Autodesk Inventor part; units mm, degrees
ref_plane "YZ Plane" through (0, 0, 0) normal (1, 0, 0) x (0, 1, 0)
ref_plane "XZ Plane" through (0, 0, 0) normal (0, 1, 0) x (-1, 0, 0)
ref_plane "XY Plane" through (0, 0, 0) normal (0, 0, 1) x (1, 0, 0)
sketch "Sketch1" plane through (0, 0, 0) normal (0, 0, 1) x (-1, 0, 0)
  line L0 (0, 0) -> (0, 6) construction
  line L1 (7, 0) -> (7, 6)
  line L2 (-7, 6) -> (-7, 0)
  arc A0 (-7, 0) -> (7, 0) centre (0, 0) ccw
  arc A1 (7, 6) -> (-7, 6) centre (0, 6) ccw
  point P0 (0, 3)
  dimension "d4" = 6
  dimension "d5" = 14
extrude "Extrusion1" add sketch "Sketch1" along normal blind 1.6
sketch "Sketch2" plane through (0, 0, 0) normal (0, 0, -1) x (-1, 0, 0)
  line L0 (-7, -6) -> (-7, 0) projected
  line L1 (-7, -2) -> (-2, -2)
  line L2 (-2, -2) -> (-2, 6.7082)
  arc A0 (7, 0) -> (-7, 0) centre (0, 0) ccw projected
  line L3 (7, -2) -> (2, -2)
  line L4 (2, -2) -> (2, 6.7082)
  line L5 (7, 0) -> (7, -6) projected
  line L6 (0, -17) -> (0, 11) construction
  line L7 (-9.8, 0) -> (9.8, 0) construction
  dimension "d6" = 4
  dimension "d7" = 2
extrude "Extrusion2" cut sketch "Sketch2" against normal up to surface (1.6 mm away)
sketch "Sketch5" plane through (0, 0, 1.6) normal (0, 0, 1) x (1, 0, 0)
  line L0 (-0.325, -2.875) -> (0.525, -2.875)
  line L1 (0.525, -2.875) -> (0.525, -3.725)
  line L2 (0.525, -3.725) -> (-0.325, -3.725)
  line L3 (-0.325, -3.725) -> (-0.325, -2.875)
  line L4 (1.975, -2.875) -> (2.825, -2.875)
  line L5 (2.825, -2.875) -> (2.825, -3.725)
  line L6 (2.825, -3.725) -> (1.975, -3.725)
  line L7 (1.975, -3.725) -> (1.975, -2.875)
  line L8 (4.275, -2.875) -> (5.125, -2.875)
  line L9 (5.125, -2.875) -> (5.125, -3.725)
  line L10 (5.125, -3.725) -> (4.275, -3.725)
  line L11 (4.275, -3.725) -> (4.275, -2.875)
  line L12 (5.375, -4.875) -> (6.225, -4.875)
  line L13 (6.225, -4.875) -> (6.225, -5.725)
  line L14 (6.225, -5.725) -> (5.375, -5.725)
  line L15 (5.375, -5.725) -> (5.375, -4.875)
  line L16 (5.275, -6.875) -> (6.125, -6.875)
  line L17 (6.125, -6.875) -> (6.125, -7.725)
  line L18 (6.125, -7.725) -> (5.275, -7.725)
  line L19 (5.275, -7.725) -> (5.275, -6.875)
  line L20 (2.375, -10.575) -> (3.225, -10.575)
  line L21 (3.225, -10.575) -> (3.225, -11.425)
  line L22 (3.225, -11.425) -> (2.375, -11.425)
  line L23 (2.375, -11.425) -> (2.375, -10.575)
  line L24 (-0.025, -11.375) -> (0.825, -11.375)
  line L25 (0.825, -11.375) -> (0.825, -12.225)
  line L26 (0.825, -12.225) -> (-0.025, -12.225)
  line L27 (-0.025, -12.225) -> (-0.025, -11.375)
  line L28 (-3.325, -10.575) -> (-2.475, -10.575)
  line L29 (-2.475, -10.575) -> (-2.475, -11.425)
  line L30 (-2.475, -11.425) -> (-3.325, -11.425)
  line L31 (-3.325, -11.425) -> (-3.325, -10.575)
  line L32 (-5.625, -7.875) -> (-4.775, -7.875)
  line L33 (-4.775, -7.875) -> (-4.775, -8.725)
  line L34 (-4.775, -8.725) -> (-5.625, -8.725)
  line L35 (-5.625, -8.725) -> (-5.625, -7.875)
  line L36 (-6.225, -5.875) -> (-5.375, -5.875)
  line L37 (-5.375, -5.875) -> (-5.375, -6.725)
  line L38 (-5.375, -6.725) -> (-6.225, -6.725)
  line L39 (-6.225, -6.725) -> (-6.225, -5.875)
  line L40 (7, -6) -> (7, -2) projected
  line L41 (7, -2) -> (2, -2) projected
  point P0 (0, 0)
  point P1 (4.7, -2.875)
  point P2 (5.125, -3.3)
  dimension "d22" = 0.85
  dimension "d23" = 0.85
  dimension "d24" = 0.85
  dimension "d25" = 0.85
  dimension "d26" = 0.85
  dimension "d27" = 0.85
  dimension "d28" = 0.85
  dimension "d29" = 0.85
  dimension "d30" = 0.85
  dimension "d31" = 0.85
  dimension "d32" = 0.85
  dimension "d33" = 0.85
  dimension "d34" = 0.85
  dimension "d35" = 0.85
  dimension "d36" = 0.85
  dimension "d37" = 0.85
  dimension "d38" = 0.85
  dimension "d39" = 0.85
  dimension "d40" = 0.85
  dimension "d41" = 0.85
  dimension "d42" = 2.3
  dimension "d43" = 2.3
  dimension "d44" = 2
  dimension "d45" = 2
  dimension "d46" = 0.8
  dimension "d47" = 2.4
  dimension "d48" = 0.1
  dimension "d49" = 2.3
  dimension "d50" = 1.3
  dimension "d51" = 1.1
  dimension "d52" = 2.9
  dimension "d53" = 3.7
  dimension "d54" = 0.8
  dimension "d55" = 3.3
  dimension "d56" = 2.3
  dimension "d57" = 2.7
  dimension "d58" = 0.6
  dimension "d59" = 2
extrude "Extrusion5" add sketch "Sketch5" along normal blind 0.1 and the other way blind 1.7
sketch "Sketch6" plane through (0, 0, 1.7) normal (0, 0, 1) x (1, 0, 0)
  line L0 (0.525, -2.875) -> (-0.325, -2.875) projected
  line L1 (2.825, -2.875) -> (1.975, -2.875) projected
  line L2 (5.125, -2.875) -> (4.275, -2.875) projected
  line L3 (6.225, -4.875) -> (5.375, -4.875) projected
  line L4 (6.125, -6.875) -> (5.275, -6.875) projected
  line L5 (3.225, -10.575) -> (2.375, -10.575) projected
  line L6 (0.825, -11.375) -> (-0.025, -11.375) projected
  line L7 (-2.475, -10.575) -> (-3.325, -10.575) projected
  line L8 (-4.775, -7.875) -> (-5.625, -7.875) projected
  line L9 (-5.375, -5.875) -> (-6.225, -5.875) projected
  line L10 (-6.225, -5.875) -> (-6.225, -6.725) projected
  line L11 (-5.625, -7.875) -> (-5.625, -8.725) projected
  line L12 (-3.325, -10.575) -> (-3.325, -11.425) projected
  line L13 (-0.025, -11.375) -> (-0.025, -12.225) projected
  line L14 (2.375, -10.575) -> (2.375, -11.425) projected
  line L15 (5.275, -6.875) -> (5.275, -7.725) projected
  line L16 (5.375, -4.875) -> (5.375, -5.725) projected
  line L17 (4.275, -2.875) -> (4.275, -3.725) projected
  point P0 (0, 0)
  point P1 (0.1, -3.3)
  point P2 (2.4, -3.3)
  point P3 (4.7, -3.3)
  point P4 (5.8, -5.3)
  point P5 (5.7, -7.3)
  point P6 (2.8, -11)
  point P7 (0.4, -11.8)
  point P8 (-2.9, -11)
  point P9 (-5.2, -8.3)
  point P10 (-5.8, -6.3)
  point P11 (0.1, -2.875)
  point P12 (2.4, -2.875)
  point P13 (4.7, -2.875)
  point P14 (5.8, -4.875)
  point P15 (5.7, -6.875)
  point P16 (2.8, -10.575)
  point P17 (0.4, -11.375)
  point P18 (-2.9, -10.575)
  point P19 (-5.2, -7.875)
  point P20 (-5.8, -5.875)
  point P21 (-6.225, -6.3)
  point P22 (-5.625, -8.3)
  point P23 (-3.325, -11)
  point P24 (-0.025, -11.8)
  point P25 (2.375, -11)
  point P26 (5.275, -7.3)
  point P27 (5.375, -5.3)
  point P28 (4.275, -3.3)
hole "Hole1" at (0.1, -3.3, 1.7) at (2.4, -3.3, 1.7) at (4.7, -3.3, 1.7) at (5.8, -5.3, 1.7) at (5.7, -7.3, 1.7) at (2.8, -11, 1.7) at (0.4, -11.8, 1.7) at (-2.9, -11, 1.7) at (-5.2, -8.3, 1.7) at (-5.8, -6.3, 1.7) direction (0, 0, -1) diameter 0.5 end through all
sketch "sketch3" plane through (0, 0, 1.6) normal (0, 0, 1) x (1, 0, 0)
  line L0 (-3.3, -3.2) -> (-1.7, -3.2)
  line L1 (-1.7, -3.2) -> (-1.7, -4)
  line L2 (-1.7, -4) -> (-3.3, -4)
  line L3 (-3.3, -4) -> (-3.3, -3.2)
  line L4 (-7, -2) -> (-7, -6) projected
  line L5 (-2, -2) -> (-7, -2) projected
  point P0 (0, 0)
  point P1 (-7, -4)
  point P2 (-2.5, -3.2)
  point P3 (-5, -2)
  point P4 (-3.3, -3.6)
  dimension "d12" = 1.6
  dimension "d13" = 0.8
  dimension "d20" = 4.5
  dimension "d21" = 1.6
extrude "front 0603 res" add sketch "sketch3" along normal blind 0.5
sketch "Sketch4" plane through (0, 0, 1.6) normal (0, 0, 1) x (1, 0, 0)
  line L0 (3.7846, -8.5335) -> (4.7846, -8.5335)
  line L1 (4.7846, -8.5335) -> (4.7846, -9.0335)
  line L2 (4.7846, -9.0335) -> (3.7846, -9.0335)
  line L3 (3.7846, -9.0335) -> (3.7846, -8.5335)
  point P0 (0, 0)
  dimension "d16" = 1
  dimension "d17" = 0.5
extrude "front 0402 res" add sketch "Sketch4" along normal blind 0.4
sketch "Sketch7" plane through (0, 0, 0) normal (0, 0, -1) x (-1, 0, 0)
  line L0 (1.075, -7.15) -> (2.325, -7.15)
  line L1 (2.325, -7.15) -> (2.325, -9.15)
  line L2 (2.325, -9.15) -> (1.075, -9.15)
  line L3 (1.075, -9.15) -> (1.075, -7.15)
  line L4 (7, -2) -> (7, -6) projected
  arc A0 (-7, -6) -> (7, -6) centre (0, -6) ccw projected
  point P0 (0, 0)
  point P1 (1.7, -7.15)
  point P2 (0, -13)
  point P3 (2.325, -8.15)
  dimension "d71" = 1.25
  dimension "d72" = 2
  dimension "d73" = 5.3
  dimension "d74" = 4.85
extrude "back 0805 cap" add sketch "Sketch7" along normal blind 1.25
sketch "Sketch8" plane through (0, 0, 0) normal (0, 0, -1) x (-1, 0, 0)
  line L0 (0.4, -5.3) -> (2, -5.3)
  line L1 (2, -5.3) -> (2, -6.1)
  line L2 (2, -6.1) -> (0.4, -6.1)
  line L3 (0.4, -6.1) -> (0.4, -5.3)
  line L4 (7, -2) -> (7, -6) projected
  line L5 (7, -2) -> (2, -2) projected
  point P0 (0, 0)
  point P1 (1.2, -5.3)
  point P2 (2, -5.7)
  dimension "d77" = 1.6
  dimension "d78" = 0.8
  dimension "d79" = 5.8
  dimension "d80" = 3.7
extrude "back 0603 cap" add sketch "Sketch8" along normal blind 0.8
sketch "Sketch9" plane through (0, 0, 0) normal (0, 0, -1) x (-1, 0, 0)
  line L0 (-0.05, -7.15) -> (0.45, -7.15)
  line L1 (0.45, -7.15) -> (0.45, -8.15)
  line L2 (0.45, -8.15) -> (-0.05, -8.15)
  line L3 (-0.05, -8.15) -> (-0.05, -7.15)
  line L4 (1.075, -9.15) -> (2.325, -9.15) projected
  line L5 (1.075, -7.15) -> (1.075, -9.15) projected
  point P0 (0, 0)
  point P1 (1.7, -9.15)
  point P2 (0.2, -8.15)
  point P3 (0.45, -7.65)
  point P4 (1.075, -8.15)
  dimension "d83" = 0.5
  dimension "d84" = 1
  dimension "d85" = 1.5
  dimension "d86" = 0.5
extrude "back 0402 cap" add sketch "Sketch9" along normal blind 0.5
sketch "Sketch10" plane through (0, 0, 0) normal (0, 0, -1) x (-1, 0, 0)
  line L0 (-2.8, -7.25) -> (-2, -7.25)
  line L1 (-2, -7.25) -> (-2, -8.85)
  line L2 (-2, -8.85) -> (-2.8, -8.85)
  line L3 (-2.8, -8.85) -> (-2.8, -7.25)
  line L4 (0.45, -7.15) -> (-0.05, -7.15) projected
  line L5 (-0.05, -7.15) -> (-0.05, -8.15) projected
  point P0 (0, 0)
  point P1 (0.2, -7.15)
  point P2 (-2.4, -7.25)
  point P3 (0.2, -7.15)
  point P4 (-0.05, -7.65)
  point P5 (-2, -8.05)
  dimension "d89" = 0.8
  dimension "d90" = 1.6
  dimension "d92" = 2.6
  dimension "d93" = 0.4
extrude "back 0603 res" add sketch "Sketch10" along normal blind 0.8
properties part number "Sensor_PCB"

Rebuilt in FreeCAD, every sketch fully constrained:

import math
import FreeCAD as App
import Part
import Sketcher

V = App.Vector
Q = App.Units.Quantity


def add_polygon(sketch, points):
    """Adds a closed chain of lines whose ends are joined by coincident constraints."""
    first, n = sketch.GeometryCount, len(points)
    for a, b in zip(points, points[1:] + points[:1]):
        sketch.addGeometry(Part.LineSegment(App.Vector(*a, 0), App.Vector(*b, 0)), False)
    for i in range(n):
        sketch.addConstraint(Sketcher.Constraint("Coincident", first + i, 2, first + (i + 1) % n, 1))

doc = App.newDocument("Part")
body = doc.addObject("PartDesign::Body", "Body")

# Sketch on XY plane
sketch1 = body.newObject("Sketcher::SketchObject", "Sketch")
sketch1.AttachmentSupport = (doc.getObject("XY_Plane"), [""])
sketch1.MapMode = "FlatFace"
sketch1.addGeometry(Part.ArcOfCircle(Part.Circle(V(0, 0, 0), V(0, 0, 1), 7), math.radians(0), math.radians(180)), False)
sketch1.addGeometry(Part.LineSegment(V(-7, 0, 0), V(-7, -6, 0)), False)
sketch1.addGeometry(Part.ArcOfCircle(Part.Circle(V(0, -6, 0), V(0, 0, 1), 7), math.radians(180), math.radians(360)), False)
sketch1.addGeometry(Part.LineSegment(V(7, -6, 0), V(7, 0, 0)), False)
sketch1.addConstraint(Sketcher.Constraint("Tangent", 0, 2, 1, 1))
sketch1.addConstraint(Sketcher.Constraint("Tangent", 1, 2, 2, 1))
sketch1.addConstraint(Sketcher.Constraint("Tangent", 2, 2, 3, 1))
sketch1.addConstraint(Sketcher.Constraint("Tangent", 3, 2, 0, 1))
sketch1.addConstraint(Sketcher.Constraint("Vertical", 1))
sketch1.addConstraint(Sketcher.Constraint("Vertical", 3))
sketch1.addConstraint(Sketcher.Constraint("Coincident", 0, 3, -1, 1))
sketch1.addConstraint(Sketcher.Constraint("Radius", 0, Q("7 mm")))
sketch1.addConstraint(Sketcher.Constraint("DistanceY", 1, 2, 1, 1, Q("6 mm")))
pad1 = body.newObject("PartDesign::Pad", "Pad")
pad1.Profile = sketch1
pad1.Length = 1.6

# Sketch on XY plane
sketch2 = body.newObject("Sketcher::SketchObject", "Sketch001")
sketch2.AttachmentSupport = (doc.getObject("XY_Plane"), [""])
sketch2.MapMode = "FlatFace"
sketch2.addGeometry(Part.ArcOfCircle(Part.Circle(V(0, 0, 0), V(0, 0, 1), 7), math.radians(107), math.radians(180)), False)
sketch2.addGeometry(Part.LineSegment(V(-2, 6.7, 0), V(-2, -2, 0)), False)
sketch2.addGeometry(Part.LineSegment(V(-2, -2, 0), V(-7, -2, 0)), False)
sketch2.addGeometry(Part.LineSegment(V(-7, -2, 0), V(-7, 0, 0)), False)
sketch2.addGeometry(Part.LineSegment(V(7, 0, 0), V(7, -2, 0)), False)
sketch2.addGeometry(Part.LineSegment(V(7, -2, 0), V(2, -2, 0)), False)
sketch2.addGeometry(Part.LineSegment(V(2, -2, 0), V(2, 6.7, 0)), False)
sketch2.addGeometry(Part.ArcOfCircle(Part.Circle(V(0, 0, 0), V(0, 0, 1), 7), math.radians(0), math.radians(73)), False)
sketch2.addConstraint(Sketcher.Constraint("Coincident", 0, 1, 1, 1))
sketch2.addConstraint(Sketcher.Constraint("Coincident", 1, 2, 2, 1))
sketch2.addConstraint(Sketcher.Constraint("Coincident", 2, 2, 3, 1))
sketch2.addConstraint(Sketcher.Constraint("Tangent", 3, 2, 0, 2))
sketch2.addConstraint(Sketcher.Constraint("Coincident", 4, 2, 5, 1))
sketch2.addConstraint(Sketcher.Constraint("Coincident", 5, 2, 6, 1))
sketch2.addConstraint(Sketcher.Constraint("Coincident", 6, 2, 7, 2))
sketch2.addConstraint(Sketcher.Constraint("Tangent", 7, 1, 4, 1))
sketch2.addConstraint(Sketcher.Constraint("Vertical", 1))
sketch2.addConstraint(Sketcher.Constraint("Horizontal", 2))
sketch2.addConstraint(Sketcher.Constraint("Vertical", 3))
sketch2.addConstraint(Sketcher.Constraint("Vertical", 4))
sketch2.addConstraint(Sketcher.Constraint("Horizontal", 5))
sketch2.addConstraint(Sketcher.Constraint("Vertical", 6))
sketch2.addConstraint(Sketcher.Constraint("Coincident", 0, 3, -1, 1))
sketch2.addConstraint(Sketcher.Constraint("Coincident", 7, 3, -1, 1))
sketch2.addConstraint(Sketcher.Constraint("Equal", 0, 7))
sketch2.addConstraint(Sketcher.Constraint("Symmetric", 1, 2, 5, 2, -2))
sketch2.addConstraint(Sketcher.Constraint("DistanceY", 3, 1, 3, 2, Q("2 mm")))
sketch2.addConstraint(Sketcher.Constraint("DistanceX", 0, 1, -1, 1, Q("2 mm")))
sketch2.addConstraint(Sketcher.Constraint("Radius", 0, Q("7 mm")))
pocket1 = body.newObject("PartDesign::Pocket", "Pocket")
pocket1.Profile = sketch2
pocket1.Length = 1.6
pocket1.Reversed = True

# Sketch on XY plane
sketch3 = body.newObject("Sketcher::SketchObject", "Sketch002")
sketch3.AttachmentSupport = (doc.getObject("XY_Plane"), [""])
sketch3.MapMode = "FlatFace"
sketch3.AttachmentOffset = App.Placement(V(0, 0, 1.6), App.Rotation())
add_polygon(sketch3, [(0.5, -2.9), (-0.3, -2.9), (-0.3, -3.7), (0.5, -3.7)])  # lines 0-3
add_polygon(sketch3, [(2.8, -2.9), (2, -2.9), (2, -3.7), (2.8, -3.7)])  # lines 4-7
add_polygon(sketch3, [(5.1, -2.9), (4.3, -2.9), (4.3, -3.7), (5.1, -3.7)])  # lines 8-11
add_polygon(sketch3, [(6.2, -4.9), (5.4, -4.9), (5.4, -5.7), (6.2, -5.7)])  # lines 12-15
add_polygon(sketch3, [(6.1, -6.9), (5.3, -6.9), (5.3, -7.7), (6.1, -7.7)])  # lines 16-19
add_polygon(sketch3, [(3.2, -10.6), (2.4, -10.6), (2.4, -11.4), (3.2, -11.4)])  # lines 20-23
add_polygon(sketch3, [(0.8, -11.4), (0, -11.4), (0, -12.2), (0.8, -12.2)])  # lines 24-27
add_polygon(sketch3, [(-2.5, -10.6), (-3.3, -10.6), (-3.3, -11.4), (-2.5, -11.4)])  # lines 28-31
add_polygon(sketch3, [(-4.8, -7.9), (-5.6, -7.9), (-5.6, -8.7), (-4.8, -8.7)])  # lines 32-35
add_polygon(sketch3, [(-5.4, -5.9), (-6.2, -5.9), (-6.2, -6.7), (-5.4, -6.7)])  # lines 36-39
sketch3.addConstraint(Sketcher.Constraint("Horizontal", 0))
sketch3.addConstraint(Sketcher.Constraint("Vertical", 1))
sketch3.addConstraint(Sketcher.Constraint("Horizontal", 2))
sketch3.addConstraint(Sketcher.Constraint("Vertical", 3))
sketch3.addConstraint(Sketcher.Constraint("Horizontal", 4))
sketch3.addConstraint(Sketcher.Constraint("Vertical", 5))
sketch3.addConstraint(Sketcher.Constraint("Horizontal", 6))
sketch3.addConstraint(Sketcher.Constraint("Vertical", 7))
sketch3.addConstraint(Sketcher.Constraint("Horizontal", 8))
sketch3.addConstraint(Sketcher.Constraint("Vertical", 9))
sketch3.addConstraint(Sketcher.Constraint("Horizontal", 10))
sketch3.addConstraint(Sketcher.Constraint("Vertical", 11))
sketch3.addConstraint(Sketcher.Constraint("Horizontal", 12))
sketch3.addConstraint(Sketcher.Constraint("Vertical", 13))
sketch3.addConstraint(Sketcher.Constraint("Horizontal", 14))
sketch3.addConstraint(Sketcher.Constraint("Vertical", 15))
sketch3.addConstraint(Sketcher.Constraint("Horizontal", 16))
sketch3.addConstraint(Sketcher.Constraint("Vertical", 17))
sketch3.addConstraint(Sketcher.Constraint("Horizontal", 18))
sketch3.addConstraint(Sketcher.Constraint("Vertical", 19))
sketch3.addConstraint(Sketcher.Constraint("Horizontal", 20))
sketch3.addConstraint(Sketcher.Constraint("Vertical", 21))
sketch3.addConstraint(Sketcher.Constraint("Horizontal", 22))
sketch3.addConstraint(Sketcher.Constraint("Vertical", 23))
sketch3.addConstraint(Sketcher.Constraint("Horizontal", 24))
sketch3.addConstraint(Sketcher.Constraint("Vertical", 25))
sketch3.addConstraint(Sketcher.Constraint("Horizontal", 26))
sketch3.addConstraint(Sketcher.Constraint("Vertical", 27))
sketch3.addConstraint(Sketcher.Constraint("Horizontal", 28))
sketch3.addConstraint(Sketcher.Constraint("Vertical", 29))
sketch3.addConstraint(Sketcher.Constraint("Horizontal", 30))
sketch3.addConstraint(Sketcher.Constraint("Vertical", 31))
sketch3.addConstraint(Sketcher.Constraint("Horizontal", 32))
sketch3.addConstraint(Sketcher.Constraint("Vertical", 33))
sketch3.addConstraint(Sketcher.Constraint("Horizontal", 34))
sketch3.addConstraint(Sketcher.Constraint("Vertical", 35))
sketch3.addConstraint(Sketcher.Constraint("Horizontal", 36))
sketch3.addConstraint(Sketcher.Constraint("Vertical", 37))
sketch3.addConstraint(Sketcher.Constraint("Horizontal", 38))
sketch3.addConstraint(Sketcher.Constraint("Vertical", 39))
sketch3.addConstraint(Sketcher.Constraint("Horizontal", 3, 2, 4, 2))
sketch3.addConstraint(Sketcher.Constraint("Horizontal", 2, 2, 5, 2))
sketch3.addConstraint(Sketcher.Constraint("Horizontal", 7, 2, 8, 2))
sketch3.addConstraint(Sketcher.Constraint("Horizontal", 6, 2, 9, 2))
sketch3.addConstraint(Sketcher.Constraint("Horizontal", 23, 2, 28, 2))
sketch3.addConstraint(Sketcher.Constraint("Horizontal", 22, 2, 29, 2))
sketch3.addConstraint(Sketcher.Constraint("Equal", 2, 4))
sketch3.addConstraint(Sketcher.Constraint("Equal", 6, 8))
sketch3.addConstraint(Sketcher.Constraint("Equal", 10, 12))
sketch3.addConstraint(Sketcher.Constraint("Equal", 14, 16))
sketch3.addConstraint(Sketcher.Constraint("Equal", 18, 20))
sketch3.addConstraint(Sketcher.Constraint("Equal", 22, 24))
sketch3.addConstraint(Sketcher.Constraint("Equal", 26, 28))
sketch3.addConstraint(Sketcher.Constraint("Equal", 30, 32))
sketch3.addConstraint(Sketcher.Constraint("Equal", 34, 36))
sketch3.addConstraint(Sketcher.Constraint("Equal", 38, 1))
sketch3.addConstraint(Sketcher.Constraint("Equal", 11, 13))
sketch3.addConstraint(Sketcher.Constraint("Equal", 15, 17))
sketch3.addConstraint(Sketcher.Constraint("Equal", 19, 21))
sketch3.addConstraint(Sketcher.Constraint("Equal", 23, 25))
sketch3.addConstraint(Sketcher.Constraint("Equal", 31, 33))
sketch3.addConstraint(Sketcher.Constraint("Equal", 35, 37))
sketch3.addConstraint(Sketcher.Constraint("DistanceY", 12, 2, 11, 2, Q("2 mm")))
sketch3.addConstraint(Sketcher.Constraint("DistanceY", 16, 2, 12, 2, Q("2 mm")))
sketch3.addConstraint(Sketcher.Constraint("DistanceY", 32, 2, 36, 2, Q("2 mm")))
sketch3.addConstraint(Sketcher.Constraint("DistanceX", 0, 2, 0, 1, Q("0.85 mm")))
sketch3.addConstraint(Sketcher.Constraint("DistanceX", 0, 2, 4, 2, Q("2.3 mm")))
sketch3.addConstraint(Sketcher.Constraint("DistanceX", 4, 2, 8, 2, Q("2.3 mm")))
sketch3.addConstraint(Sketcher.Constraint("DistanceX", 9, 2, 12, 2, Q("1.1 mm")))
sketch3.addConstraint(Sketcher.Constraint("DistanceX", 16, 2, 13, 2, Q("0.1 mm")))
sketch3.addConstraint(Sketcher.Constraint("DistanceX", 20, 2, 17, 2, Q("2.9 mm")))
sketch3.addConstraint(Sketcher.Constraint("DistanceY", 20, 2, 16, 2, Q("3.7 mm")))
sketch3.addConstraint(Sketcher.Constraint("DistanceX", 24, 2, 21, 2, Q("2.4 mm")))
sketch3.addConstraint(Sketcher.Constraint("DistanceY", 24, 2, 20, 2, Q("0.8 mm")))
sketch3.addConstraint(Sketcher.Constraint("DistanceX", 28, 2, 24, 2, Q("3.3 mm")))
sketch3.addConstraint(Sketcher.Constraint("DistanceX", 32, 2, 28, 2, Q("2.3 mm")))
sketch3.addConstraint(Sketcher.Constraint("DistanceY", 28, 2, 32, 2, Q("2.7 mm")))
sketch3.addConstraint(Sketcher.Constraint("DistanceX", 36, 2, 32, 2, Q("0.6 mm")))
sketch3.addConstraint(Sketcher.Constraint("DistanceX", 0, 2, -1, 1, Q("0.325 mm")))
sketch3.addConstraint(Sketcher.Constraint("DistanceY", 0, 2, -1, 1, Q("2.875 mm")))
pad2 = body.newObject("PartDesign::Pad", "Pad001")
pad2.Profile = sketch3
pad2.Type = "TwoLengths"
pad2.Length = 0.1
pad2.Length2 = 1.7

# Sketch on XY plane
sketch4 = body.newObject("Sketcher::SketchObject", "Sketch003")
sketch4.AttachmentSupport = (doc.getObject("XY_Plane"), [""])
sketch4.MapMode = "FlatFace"
sketch4.AttachmentOffset = App.Placement(V(0, 0, 1.7), App.Rotation())
sketch4.addGeometry(Part.Circle(V(0.1, -3.3, 0), V(0, 0, 1), 0.25), False)
sketch4.addGeometry(Part.Circle(V(2.4, -3.3, 0), V(0, 0, 1), 0.25), False)
sketch4.addGeometry(Part.Circle(V(4.7, -3.3, 0), V(0, 0, 1), 0.25), False)
sketch4.addGeometry(Part.Circle(V(5.8, -5.3, 0), V(0, 0, 1), 0.25), False)
sketch4.addGeometry(Part.Circle(V(5.7, -7.3, 0), V(0, 0, 1), 0.25), False)
sketch4.addGeometry(Part.Circle(V(2.8, -11, 0), V(0, 0, 1), 0.25), False)
sketch4.addGeometry(Part.Circle(V(0.4, -11.8, 0), V(0, 0, 1), 0.25), False)
sketch4.addGeometry(Part.Circle(V(-2.9, -11, 0), V(0, 0, 1), 0.25), False)
sketch4.addGeometry(Part.Circle(V(-5.2, -8.3, 0), V(0, 0, 1), 0.25), False)
sketch4.addGeometry(Part.Circle(V(-5.8, -6.3, 0), V(0, 0, 1), 0.25), False)
sketch4.addConstraint(Sketcher.Constraint("Equal", 0, 1))
sketch4.addConstraint(Sketcher.Constraint("Equal", 1, 2))
sketch4.addConstraint(Sketcher.Constraint("Equal", 2, 3))
sketch4.addConstraint(Sketcher.Constraint("Equal", 3, 4))
sketch4.addConstraint(Sketcher.Constraint("Equal", 4, 5))
sketch4.addConstraint(Sketcher.Constraint("Equal", 5, 6))
sketch4.addConstraint(Sketcher.Constraint("Equal", 6, 7))
sketch4.addConstraint(Sketcher.Constraint("Equal", 7, 8))
sketch4.addConstraint(Sketcher.Constraint("Equal", 8, 9))
sketch4.addConstraint(Sketcher.Constraint("Horizontal", 0, 3, 1, 3))
sketch4.addConstraint(Sketcher.Constraint("Horizontal", 1, 3, 2, 3))
sketch4.addConstraint(Sketcher.Constraint("Horizontal", 5, 3, 7, 3))
sketch4.addConstraint(Sketcher.Constraint("Diameter", 0, Q("0.5 mm")))
sketch4.addConstraint(Sketcher.Constraint("DistanceY", 5, 3, -1, 1, Q("11 mm")))
sketch4.addConstraint(Sketcher.Constraint("DistanceY", 3, 3, 2, 3, Q("2 mm")))
sketch4.addConstraint(Sketcher.Constraint("DistanceY", 4, 3, 3, 3, Q("2 mm")))
sketch4.addConstraint(Sketcher.Constraint("DistanceX", 2, 3, 4, 3, Q("1 mm")))
sketch4.addConstraint(Sketcher.Constraint("DistanceX", 5, 3, 3, 3, Q("3 mm")))
sketch4.addConstraint(Sketcher.Constraint("DistanceX", 6, 3, 1, 3, Q("2 mm")))
sketch4.addConstraint(Sketcher.Constraint("DistanceX", 7, 3, 0, 3, Q("3 mm")))
sketch4.addConstraint(Sketcher.Constraint("DistanceY", 8, 3, 0, 3, Q("5 mm")))
sketch4.addConstraint(Sketcher.Constraint("DistanceX", 8, 3, 5, 3, Q("8 mm")))
sketch4.addConstraint(Sketcher.Constraint("DistanceY", 8, 3, 9, 3, Q("2 mm")))
sketch4.addConstraint(Sketcher.Constraint("DistanceX", -1, 1, 0, 3, Q("0.1 mm")))
sketch4.addConstraint(Sketcher.Constraint("DistanceY", 0, 3, -1, 1, Q("3.3 mm")))
sketch4.addConstraint(Sketcher.Constraint("DistanceX", -1, 1, 1, 3, Q("2.4 mm")))
sketch4.addConstraint(Sketcher.Constraint("DistanceX", -1, 1, 2, 3, Q("4.7 mm")))
sketch4.addConstraint(Sketcher.Constraint("DistanceX", -1, 1, 3, 3, Q("5.8 mm")))
sketch4.addConstraint(Sketcher.Constraint("DistanceY", 6, 3, -1, 1, Q("11.8 mm")))
sketch4.addConstraint(Sketcher.Constraint("DistanceX", 9, 3, -1, 1, Q("5.8 mm")))
doc.recompute()
hole = body.newObject("PartDesign::Hole", "Hole")
hole.Profile = sketch4
hole.ThreadType = "None"
hole.Diameter = 0.5
hole.DepthType = "ThroughAll"

# Sketch on XY plane
sketch5 = body.newObject("Sketcher::SketchObject", "Sketch004")
sketch5.AttachmentSupport = (doc.getObject("XY_Plane"), [""])
sketch5.MapMode = "FlatFace"
sketch5.AttachmentOffset = App.Placement(V(0, 0, 1.6), App.Rotation())
add_polygon(sketch5, [(-1.7, -3.2), (-3.3, -3.2), (-3.3, -4), (-1.7, -4)])  # lines 0-3
sketch5.addConstraint(Sketcher.Constraint("Horizontal", 0))
sketch5.addConstraint(Sketcher.Constraint("Vertical", 1))
sketch5.addConstraint(Sketcher.Constraint("Horizontal", 2))
sketch5.addConstraint(Sketcher.Constraint("Vertical", 3))
sketch5.addConstraint(Sketcher.Constraint("DistanceX", 0, 2, 0, 1, Q("1.6 mm")))
sketch5.addConstraint(Sketcher.Constraint("DistanceY", 1, 2, 1, 1, Q("0.8 mm")))
sketch5.addConstraint(Sketcher.Constraint("DistanceY", 1, 2, -1, 1, Q("4 mm")))
sketch5.addConstraint(Sketcher.Constraint("DistanceX", 0, 2, -1, 1, Q("3.3 mm")))
pad3 = body.newObject("PartDesign::Pad", "Pad002")
pad3.Profile = sketch5
pad3.Length = 0.5

# Sketch on XY plane
sketch6 = body.newObject("Sketcher::SketchObject", "Sketch005")
sketch6.AttachmentSupport = (doc.getObject("XY_Plane"), [""])
sketch6.MapMode = "FlatFace"
sketch6.AttachmentOffset = App.Placement(V(0, 0, 1.6), App.Rotation())
add_polygon(sketch6, [(4.8, -8.5), (3.8, -8.5), (3.8, -9), (4.8, -9)])  # lines 0-3
sketch6.addConstraint(Sketcher.Constraint("Horizontal", 0))
sketch6.addConstraint(Sketcher.Constraint("Vertical", 1))
sketch6.addConstraint(Sketcher.Constraint("Horizontal", 2))
sketch6.addConstraint(Sketcher.Constraint("Vertical", 3))
sketch6.addConstraint(Sketcher.Constraint("DistanceX", 0, 2, 0, 1, Q("1 mm")))
sketch6.addConstraint(Sketcher.Constraint("DistanceY", 1, 2, 1, 1, Q("0.5 mm")))
sketch6.addConstraint(Sketcher.Constraint("DistanceX", -1, 1, 0, 2, Q("3.7846 mm")))
sketch6.addConstraint(Sketcher.Constraint("DistanceY", 0, 2, -1, 1, Q("8.5335 mm")))
pad4 = body.newObject("PartDesign::Pad", "Pad003")
pad4.Profile = sketch6
pad4.Length = 0.4

# Sketch on XY plane
sketch7 = body.newObject("Sketcher::SketchObject", "Sketch006")
sketch7.AttachmentSupport = (doc.getObject("XY_Plane"), [""])
sketch7.MapMode = "FlatFace"
add_polygon(sketch7, [(-2.3, -7.2), (-1.1, -7.2), (-1.1, -9.2), (-2.3, -9.2)])  # lines 0-3
sketch7.addConstraint(Sketcher.Constraint("Horizontal", 0))
sketch7.addConstraint(Sketcher.Constraint("Vertical", 1))
sketch7.addConstraint(Sketcher.Constraint("Horizontal", 2))
sketch7.addConstraint(Sketcher.Constraint("Vertical", 3))
sketch7.addConstraint(Sketcher.Constraint("DistanceY", 1, 2, 1, 1, Q("2 mm")))
sketch7.addConstraint(Sketcher.Constraint("DistanceX", 0, 1, 0, 2, Q("1.25 mm")))
sketch7.addConstraint(Sketcher.Constraint("DistanceY", 0, 2, -1, 1, Q("7.15 mm")))
sketch7.addConstraint(Sketcher.Constraint("DistanceX", 0, 2, -1, 1, Q("1.075 mm")))
pad5 = body.newObject("PartDesign::Pad", "Pad004")
pad5.Profile = sketch7
pad5.Length = 1.25
pad5.Reversed = True

# Sketch on XY plane
sketch8 = body.newObject("Sketcher::SketchObject", "Sketch007")
sketch8.AttachmentSupport = (doc.getObject("XY_Plane"), [""])
sketch8.MapMode = "FlatFace"
add_polygon(sketch8, [(-2, -5.3), (-0.4, -5.3), (-0.4, -6.1), (-2, -6.1)])  # lines 0-3
sketch8.addConstraint(Sketcher.Constraint("Horizontal", 0))
sketch8.addConstraint(Sketcher.Constraint("Vertical", 1))
sketch8.addConstraint(Sketcher.Constraint("Horizontal", 2))
sketch8.addConstraint(Sketcher.Constraint("Vertical", 3))
sketch8.addConstraint(Sketcher.Constraint("DistanceX", 0, 1, 0, 2, Q("1.6 mm")))
sketch8.addConstraint(Sketcher.Constraint("DistanceY", 1, 2, 1, 1, Q("0.8 mm")))
sketch8.addConstraint(Sketcher.Constraint("DistanceX", 2, 2, -1, 1, Q("2 mm")))
sketch8.addConstraint(Sketcher.Constraint("DistanceY", 0, 2, -1, 1, Q("5.3 mm")))
pad6 = body.newObject("PartDesign::Pad", "Pad005")
pad6.Profile = sketch8
pad6.Length = 0.8
pad6.Reversed = True

# Sketch on XY plane
sketch9 = body.newObject("Sketcher::SketchObject", "Sketch008")
sketch9.AttachmentSupport = (doc.getObject("XY_Plane"), [""])
sketch9.MapMode = "FlatFace"
add_polygon(sketch9, [(-0.5, -7.2), (0.1, -7.2), (0.1, -8.2), (-0.5, -8.2)])  # lines 0-3
sketch9.addConstraint(Sketcher.Constraint("Horizontal", 0))
sketch9.addConstraint(Sketcher.Constraint("Vertical", 1))
sketch9.addConstraint(Sketcher.Constraint("Horizontal", 2))
sketch9.addConstraint(Sketcher.Constraint("Vertical", 3))
sketch9.addConstraint(Sketcher.Constraint("DistanceY", 1, 2, 1, 1, Q("1 mm")))
sketch9.addConstraint(Sketcher.Constraint("DistanceX", 0, 1, 0, 2, Q("0.5 mm")))
sketch9.addConstraint(Sketcher.Constraint("DistanceX", -1, 1, 0, 2, Q("0.05 mm")))
sketch9.addConstraint(Sketcher.Constraint("DistanceY", 0, 2, -1, 1, Q("7.15 mm")))
pad7 = body.newObject("PartDesign::Pad", "Pad006")
pad7.Profile = sketch9
pad7.Length = 0.5
pad7.Reversed = True

# Sketch on XY plane
sketch10 = body.newObject("Sketcher::SketchObject", "Sketch009")
sketch10.AttachmentSupport = (doc.getObject("XY_Plane"), [""])
sketch10.MapMode = "FlatFace"
add_polygon(sketch10, [(2, -7.2), (2.8, -7.2), (2.8, -8.8), (2, -8.8)])  # lines 0-3
sketch10.addConstraint(Sketcher.Constraint("Horizontal", 0))
sketch10.addConstraint(Sketcher.Constraint("Vertical", 1))
sketch10.addConstraint(Sketcher.Constraint("Horizontal", 2))
sketch10.addConstraint(Sketcher.Constraint("Vertical", 3))
sketch10.addConstraint(Sketcher.Constraint("DistanceX", 0, 1, 0, 2, Q("0.8 mm")))
sketch10.addConstraint(Sketcher.Constraint("DistanceY", 1, 2, 1, 1, Q("1.6 mm")))
sketch10.addConstraint(Sketcher.Constraint("DistanceX", -1, 1, 2, 2, Q("2 mm")))
sketch10.addConstraint(Sketcher.Constraint("DistanceY", 0, 2, -1, 1, Q("7.25 mm")))
pad8 = body.newObject("PartDesign::Pad", "Pad007")
pad8.Profile = sketch10
pad8.Length = 0.8
pad8.Reversed = True

doc.recompute()
